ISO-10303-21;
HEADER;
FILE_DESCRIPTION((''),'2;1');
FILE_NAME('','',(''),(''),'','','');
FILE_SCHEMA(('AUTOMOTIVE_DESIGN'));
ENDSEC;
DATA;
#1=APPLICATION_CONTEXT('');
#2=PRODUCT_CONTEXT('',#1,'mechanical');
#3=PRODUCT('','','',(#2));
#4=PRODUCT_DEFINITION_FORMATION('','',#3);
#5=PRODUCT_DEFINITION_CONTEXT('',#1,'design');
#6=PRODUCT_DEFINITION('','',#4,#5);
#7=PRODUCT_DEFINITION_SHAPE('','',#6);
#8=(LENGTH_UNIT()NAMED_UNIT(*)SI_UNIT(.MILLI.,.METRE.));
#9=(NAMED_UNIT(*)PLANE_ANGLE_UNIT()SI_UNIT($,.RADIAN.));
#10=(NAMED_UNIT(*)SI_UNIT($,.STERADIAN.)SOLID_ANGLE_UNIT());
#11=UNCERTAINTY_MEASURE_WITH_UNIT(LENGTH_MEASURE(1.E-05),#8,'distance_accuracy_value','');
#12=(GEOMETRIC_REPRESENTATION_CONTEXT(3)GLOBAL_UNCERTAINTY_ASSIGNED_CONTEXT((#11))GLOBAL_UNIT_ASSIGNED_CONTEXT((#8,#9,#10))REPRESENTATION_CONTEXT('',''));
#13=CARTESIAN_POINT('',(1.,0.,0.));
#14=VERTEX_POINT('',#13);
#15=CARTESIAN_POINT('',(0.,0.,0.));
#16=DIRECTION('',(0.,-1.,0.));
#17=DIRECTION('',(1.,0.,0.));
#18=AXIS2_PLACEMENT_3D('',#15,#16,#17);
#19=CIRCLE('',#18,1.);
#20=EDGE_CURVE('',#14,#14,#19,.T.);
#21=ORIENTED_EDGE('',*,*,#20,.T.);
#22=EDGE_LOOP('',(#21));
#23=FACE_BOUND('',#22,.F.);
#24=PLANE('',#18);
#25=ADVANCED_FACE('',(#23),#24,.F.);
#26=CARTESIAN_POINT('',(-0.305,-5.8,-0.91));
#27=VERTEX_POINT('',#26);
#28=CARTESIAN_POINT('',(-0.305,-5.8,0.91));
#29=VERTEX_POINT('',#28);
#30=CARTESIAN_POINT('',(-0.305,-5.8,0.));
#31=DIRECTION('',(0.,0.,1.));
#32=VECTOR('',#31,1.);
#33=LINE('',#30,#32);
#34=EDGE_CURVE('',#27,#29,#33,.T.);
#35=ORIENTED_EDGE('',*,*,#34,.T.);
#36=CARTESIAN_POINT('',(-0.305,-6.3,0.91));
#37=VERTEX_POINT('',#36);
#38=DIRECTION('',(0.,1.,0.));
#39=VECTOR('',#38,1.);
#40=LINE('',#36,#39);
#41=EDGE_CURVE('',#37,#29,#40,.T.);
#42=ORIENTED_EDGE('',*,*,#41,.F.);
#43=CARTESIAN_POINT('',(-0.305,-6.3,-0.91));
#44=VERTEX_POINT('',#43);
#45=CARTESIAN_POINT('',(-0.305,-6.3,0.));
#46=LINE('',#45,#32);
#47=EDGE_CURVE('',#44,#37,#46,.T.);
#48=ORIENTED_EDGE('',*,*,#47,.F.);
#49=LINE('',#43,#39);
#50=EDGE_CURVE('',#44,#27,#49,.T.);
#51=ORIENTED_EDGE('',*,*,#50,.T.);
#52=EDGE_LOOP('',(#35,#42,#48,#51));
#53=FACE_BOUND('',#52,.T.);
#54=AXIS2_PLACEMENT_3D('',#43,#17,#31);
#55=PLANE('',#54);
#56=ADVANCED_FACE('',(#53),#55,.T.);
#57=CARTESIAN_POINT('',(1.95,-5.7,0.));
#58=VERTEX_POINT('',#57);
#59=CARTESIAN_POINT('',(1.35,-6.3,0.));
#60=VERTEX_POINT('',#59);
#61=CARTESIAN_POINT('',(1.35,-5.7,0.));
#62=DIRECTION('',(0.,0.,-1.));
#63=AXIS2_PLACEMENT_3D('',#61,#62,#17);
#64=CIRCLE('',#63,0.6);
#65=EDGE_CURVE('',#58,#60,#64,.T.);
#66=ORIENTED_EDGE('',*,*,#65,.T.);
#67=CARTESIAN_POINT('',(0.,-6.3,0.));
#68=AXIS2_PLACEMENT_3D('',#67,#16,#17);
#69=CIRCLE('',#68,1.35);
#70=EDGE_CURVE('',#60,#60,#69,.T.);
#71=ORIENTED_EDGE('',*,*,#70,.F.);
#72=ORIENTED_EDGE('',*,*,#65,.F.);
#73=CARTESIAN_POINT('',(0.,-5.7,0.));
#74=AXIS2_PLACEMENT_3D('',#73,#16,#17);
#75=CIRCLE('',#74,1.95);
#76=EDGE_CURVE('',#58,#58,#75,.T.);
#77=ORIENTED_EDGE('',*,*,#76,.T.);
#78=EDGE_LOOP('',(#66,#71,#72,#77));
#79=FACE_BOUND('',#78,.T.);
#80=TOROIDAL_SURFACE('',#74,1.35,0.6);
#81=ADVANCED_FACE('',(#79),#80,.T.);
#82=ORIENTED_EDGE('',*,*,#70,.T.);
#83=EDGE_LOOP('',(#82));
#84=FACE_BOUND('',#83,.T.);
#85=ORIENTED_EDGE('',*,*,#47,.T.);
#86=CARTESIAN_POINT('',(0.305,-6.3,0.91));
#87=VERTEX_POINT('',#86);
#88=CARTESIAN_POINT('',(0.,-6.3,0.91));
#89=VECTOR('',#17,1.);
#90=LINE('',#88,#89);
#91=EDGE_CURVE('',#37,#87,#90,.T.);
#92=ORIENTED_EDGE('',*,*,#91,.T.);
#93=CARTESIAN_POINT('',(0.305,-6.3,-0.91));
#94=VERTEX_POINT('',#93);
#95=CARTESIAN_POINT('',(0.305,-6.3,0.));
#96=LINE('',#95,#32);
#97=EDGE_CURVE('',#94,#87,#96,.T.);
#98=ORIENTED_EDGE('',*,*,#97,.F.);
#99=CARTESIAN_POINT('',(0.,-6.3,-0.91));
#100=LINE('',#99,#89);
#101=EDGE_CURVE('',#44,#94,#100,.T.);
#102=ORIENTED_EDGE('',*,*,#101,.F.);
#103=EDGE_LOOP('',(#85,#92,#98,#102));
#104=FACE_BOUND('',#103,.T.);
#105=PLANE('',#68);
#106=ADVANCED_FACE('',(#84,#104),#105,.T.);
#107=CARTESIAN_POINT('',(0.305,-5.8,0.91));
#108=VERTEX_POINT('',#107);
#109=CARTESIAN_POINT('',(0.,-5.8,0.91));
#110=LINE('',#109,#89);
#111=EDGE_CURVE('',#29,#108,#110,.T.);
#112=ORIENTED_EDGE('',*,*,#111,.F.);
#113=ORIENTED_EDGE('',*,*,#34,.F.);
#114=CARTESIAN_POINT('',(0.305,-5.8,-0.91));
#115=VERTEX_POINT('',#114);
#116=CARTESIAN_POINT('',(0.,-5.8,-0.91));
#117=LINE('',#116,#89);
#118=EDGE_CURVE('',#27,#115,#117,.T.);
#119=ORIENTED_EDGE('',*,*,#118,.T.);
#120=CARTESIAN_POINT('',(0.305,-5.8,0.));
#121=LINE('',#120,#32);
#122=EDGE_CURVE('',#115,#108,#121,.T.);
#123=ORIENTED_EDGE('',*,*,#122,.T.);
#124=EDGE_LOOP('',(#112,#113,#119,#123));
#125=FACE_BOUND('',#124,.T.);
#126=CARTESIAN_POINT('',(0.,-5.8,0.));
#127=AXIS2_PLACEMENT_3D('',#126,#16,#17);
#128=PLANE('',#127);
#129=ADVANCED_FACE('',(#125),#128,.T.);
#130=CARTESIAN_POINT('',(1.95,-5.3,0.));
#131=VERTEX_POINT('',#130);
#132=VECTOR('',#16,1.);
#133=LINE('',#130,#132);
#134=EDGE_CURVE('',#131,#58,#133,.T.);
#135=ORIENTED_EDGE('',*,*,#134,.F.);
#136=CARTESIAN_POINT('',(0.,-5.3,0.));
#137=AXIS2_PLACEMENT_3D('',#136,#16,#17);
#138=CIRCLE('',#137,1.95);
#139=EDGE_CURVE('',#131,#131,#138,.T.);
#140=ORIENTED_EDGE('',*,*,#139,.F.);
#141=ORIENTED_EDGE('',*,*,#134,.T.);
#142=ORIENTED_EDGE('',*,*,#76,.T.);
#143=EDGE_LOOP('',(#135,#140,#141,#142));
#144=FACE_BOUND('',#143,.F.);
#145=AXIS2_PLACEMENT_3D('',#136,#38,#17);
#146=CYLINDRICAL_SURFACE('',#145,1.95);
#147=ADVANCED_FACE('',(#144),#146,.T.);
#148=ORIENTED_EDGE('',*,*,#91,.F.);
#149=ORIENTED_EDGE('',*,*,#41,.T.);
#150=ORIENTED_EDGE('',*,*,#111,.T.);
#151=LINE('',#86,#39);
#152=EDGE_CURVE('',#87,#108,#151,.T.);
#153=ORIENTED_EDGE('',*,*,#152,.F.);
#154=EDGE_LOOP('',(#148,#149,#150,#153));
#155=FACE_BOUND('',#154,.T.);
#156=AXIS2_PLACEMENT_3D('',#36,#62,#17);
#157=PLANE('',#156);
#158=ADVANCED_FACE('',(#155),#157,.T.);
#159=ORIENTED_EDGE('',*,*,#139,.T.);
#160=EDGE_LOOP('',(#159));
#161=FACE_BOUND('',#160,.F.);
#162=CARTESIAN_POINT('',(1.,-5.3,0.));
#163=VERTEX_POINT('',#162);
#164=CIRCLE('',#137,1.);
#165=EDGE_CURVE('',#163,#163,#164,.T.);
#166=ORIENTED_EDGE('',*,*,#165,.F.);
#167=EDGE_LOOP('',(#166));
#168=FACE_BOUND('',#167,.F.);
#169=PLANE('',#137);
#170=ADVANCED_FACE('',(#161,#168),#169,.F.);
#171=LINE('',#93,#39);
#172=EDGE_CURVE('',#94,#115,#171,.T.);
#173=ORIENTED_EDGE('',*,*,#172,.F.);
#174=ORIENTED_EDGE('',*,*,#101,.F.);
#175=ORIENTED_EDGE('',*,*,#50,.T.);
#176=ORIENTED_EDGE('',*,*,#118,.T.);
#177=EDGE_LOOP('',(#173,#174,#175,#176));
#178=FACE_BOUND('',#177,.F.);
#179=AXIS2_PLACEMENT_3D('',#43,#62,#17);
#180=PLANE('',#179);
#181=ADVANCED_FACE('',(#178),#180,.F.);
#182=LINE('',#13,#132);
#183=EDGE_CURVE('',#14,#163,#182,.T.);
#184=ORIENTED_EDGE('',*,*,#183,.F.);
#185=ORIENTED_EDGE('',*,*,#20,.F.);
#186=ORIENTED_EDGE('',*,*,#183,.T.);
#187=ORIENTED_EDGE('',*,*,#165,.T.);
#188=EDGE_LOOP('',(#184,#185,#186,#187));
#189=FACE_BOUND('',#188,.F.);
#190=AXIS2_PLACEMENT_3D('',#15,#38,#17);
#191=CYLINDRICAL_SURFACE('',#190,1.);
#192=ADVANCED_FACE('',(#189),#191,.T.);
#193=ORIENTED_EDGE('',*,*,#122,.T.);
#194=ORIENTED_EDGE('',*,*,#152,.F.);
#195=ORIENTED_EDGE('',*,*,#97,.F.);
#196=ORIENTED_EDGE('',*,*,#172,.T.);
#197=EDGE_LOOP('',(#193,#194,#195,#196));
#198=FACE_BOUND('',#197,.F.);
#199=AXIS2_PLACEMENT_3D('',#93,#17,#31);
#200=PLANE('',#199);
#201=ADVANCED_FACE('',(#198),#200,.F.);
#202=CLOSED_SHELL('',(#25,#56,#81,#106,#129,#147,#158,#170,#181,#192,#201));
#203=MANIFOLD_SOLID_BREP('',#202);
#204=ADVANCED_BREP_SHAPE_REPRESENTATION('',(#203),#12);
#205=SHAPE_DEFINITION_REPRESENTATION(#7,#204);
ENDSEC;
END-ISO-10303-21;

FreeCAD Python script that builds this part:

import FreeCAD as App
import Part
import Sketcher
Q = App.Units.Quantity


def edges_at(feature, points):
    """Names of the edges that pass closest to the given points."""
    edges = feature.Shape.Edges
    near = lambda p: min(range(len(edges)), key=lambda i: edges[i].distToShape(Part.Vertex(*p))[0])
    return sorted({f"Edge{near(p) + 1}" for p in points})


def add_polygon(sketch, points):
    """Adds a closed chain of lines whose ends are joined by coincident constraints."""
    first, n = sketch.GeometryCount, len(points)
    for a, b in zip(points, points[1:] + points[:1]):
        sketch.addGeometry(Part.LineSegment(App.Vector(*a, 0), App.Vector(*b, 0)), False)
    for i in range(n):
        sketch.addConstraint(Sketcher.Constraint("Coincident", first + i, 2, first + (i + 1) % n, 1))

doc = App.newDocument("Part")
body = doc.addObject("PartDesign::Body", "Body")

sketch1 = body.newObject("Sketcher::SketchObject", "Sketch")
sketch1.AttachmentSupport = (doc.getObject("XZ_Plane"), [""])
sketch1.MapMode = "FlatFace"
sketch1.addGeometry(Part.Circle(App.Vector(0, 0, 0), App.Vector(0, 0, 1), 1), False)
sketch1.addConstraint([
    Sketcher.Constraint("Coincident", 0, 3, -1, 1),
    Sketcher.Constraint("Diameter", 0, Q("2 mm")),
])
pad1 = body.newObject("PartDesign::Pad", "Pad")
pad1.Profile = sketch1
pad1.Length = 5.3

sketch2 = body.newObject("Sketcher::SketchObject", "Sketch001")
sketch2.AttachmentSupport = (doc.getObject("XZ_Plane"), [""])
sketch2.MapMode = "FlatFace"
sketch2.AttachmentOffset = App.Placement(App.Vector(0, 0, 5.3), App.Rotation())
sketch2.addGeometry(Part.Circle(App.Vector(0, 0, 0), App.Vector(0, 0, 1), 1.95), False)
sketch2.addConstraint([
    Sketcher.Constraint("Coincident", 0, 3, -1, 1),
    Sketcher.Constraint("Diameter", 0, Q("3.9 mm")),
])
pad2 = body.newObject("PartDesign::Pad", "Pad001")
pad2.Profile = sketch2
pad2.Length = 1

sketch3 = body.newObject("Sketcher::SketchObject", "Sketch002")
sketch3.AttachmentSupport = (doc.getObject("XZ_Plane"), [""])
sketch3.MapMode = "FlatFace"
sketch3.AttachmentOffset = App.Placement(App.Vector(0, 0, 6.3), App.Rotation())
add_polygon(sketch3, [(-0.305, 0.91), (-0.305, -0.91), (0.305, -0.91), (0.305, 0.91)])
sketch3.addConstraint([
    Sketcher.Constraint("Vertical", 0),
    Sketcher.Constraint("Horizontal", 1),
    Sketcher.Constraint("Vertical", 2),
    Sketcher.Constraint("Horizontal", 3),
    Sketcher.Constraint("Symmetric", 0, 2, 2, 2, -1, 1),
    Sketcher.Constraint("DistanceX", 1, 1, 1, 2, Q("0.61 mm")),
    Sketcher.Constraint("DistanceY", 0, 2, 0, 1, Q("1.82 mm")),
])
pocket1 = body.newObject("PartDesign::Pocket", "Pocket")
pocket1.Profile = sketch3
pocket1.Length = 0.5
doc.recompute()

fillet = body.newObject("PartDesign::Fillet", "Fillet")
fillet.Base = (pocket1, edges_at(pocket1, [(-1.95, -6.3, 0)]))
fillet.Radius = 0.6

doc.recompute()
